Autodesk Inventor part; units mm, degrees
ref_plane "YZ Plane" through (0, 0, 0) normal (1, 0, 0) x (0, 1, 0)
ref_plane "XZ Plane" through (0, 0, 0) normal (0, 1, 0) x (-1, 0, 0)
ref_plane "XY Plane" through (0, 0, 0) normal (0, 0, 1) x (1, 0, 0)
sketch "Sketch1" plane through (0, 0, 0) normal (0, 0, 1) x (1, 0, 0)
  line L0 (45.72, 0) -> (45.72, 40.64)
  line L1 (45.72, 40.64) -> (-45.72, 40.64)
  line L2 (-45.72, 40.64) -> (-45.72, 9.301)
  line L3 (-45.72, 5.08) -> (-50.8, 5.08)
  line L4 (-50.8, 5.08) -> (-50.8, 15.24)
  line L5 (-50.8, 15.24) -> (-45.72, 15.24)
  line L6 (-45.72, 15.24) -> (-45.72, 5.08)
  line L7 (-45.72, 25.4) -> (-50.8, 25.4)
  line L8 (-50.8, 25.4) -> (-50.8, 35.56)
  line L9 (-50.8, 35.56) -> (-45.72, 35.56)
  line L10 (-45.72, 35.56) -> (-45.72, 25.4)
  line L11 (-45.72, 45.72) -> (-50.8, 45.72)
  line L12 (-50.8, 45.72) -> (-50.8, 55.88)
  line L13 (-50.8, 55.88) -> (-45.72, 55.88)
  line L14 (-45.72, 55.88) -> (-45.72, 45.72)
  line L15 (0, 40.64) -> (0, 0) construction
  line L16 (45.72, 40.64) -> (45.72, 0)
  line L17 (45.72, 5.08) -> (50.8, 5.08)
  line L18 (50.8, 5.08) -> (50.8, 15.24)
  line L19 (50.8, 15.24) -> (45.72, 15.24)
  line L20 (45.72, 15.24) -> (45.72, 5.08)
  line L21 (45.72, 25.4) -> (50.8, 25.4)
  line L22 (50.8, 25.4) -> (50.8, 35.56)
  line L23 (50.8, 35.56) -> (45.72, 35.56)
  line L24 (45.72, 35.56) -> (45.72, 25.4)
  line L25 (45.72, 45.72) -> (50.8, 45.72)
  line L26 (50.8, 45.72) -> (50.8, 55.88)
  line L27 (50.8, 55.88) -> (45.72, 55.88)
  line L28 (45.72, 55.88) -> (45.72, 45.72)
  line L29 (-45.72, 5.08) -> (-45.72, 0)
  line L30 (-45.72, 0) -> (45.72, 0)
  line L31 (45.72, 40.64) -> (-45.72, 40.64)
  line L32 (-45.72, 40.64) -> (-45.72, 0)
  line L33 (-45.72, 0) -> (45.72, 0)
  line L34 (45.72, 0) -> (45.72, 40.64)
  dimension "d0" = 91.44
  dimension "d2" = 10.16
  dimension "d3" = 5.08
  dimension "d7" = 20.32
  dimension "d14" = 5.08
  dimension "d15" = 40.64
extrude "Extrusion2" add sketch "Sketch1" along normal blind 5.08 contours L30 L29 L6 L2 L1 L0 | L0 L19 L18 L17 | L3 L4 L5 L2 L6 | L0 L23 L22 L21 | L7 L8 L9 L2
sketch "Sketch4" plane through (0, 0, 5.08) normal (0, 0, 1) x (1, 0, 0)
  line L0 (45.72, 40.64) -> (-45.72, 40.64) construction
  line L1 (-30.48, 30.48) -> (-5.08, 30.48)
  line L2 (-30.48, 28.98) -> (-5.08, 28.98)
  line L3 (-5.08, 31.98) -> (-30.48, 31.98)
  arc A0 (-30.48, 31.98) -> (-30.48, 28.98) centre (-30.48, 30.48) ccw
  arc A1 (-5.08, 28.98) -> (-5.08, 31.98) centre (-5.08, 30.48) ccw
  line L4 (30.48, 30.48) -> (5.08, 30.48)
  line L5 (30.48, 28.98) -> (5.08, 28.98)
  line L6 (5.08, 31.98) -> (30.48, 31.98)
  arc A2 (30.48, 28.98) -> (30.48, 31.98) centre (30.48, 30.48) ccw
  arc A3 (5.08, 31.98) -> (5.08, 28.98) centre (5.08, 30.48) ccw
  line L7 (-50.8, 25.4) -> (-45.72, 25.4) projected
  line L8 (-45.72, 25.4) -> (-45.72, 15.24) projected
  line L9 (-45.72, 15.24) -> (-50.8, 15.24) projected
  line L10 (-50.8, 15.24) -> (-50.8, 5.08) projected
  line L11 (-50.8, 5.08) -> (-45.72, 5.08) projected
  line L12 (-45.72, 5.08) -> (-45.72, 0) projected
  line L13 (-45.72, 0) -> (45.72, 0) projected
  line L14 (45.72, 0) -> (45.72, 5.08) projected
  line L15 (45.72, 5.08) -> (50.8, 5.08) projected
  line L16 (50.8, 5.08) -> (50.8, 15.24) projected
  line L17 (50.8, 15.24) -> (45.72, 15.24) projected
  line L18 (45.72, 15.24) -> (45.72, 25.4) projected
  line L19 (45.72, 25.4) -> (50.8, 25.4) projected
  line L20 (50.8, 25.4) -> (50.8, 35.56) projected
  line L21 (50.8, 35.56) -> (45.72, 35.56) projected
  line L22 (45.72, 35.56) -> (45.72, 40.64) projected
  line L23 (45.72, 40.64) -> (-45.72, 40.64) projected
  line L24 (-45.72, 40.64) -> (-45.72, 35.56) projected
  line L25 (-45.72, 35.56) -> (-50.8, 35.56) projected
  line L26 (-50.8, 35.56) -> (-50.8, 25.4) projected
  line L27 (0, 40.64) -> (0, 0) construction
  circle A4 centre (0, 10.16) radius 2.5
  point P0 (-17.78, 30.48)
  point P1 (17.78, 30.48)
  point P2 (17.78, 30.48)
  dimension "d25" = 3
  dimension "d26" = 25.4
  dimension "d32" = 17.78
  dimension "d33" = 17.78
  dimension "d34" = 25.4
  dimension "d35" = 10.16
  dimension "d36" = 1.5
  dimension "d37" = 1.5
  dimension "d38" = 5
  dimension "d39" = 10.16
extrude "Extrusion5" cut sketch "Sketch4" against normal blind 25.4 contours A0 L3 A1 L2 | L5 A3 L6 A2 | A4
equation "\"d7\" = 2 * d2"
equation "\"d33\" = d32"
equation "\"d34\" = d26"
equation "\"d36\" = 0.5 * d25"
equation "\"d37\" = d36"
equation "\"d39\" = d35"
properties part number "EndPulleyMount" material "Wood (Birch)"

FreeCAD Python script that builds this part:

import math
import FreeCAD as App
import Part
import Sketcher
from FreeCAD import Vector
Q = App.Units.Quantity

doc = App.newDocument("Part")
body = doc.addObject("PartDesign::Body", "Body")

# Sketch on XY plane
sketch1 = doc.addObject("Sketcher::SketchObject", "Sketch")
body.addObject(sketch1)
sketch1.AttachmentSupport = (doc.XY_Plane, [""])
sketch1.MapMode = "FlatFace"
sketch1.addGeometry([
    Part.LineSegment(Vector(-45.72, 0, 0), Vector(45.72, 0, 0)),  # 0
    Part.LineSegment(Vector(45.72, 0, 0), Vector(45.72, 5.08, 0)),  # 1
    Part.LineSegment(Vector(45.72, 5.08, 0), Vector(50.8, 5.08, 0)),  # 2
    Part.LineSegment(Vector(50.8, 5.08, 0), Vector(50.8, 15.24, 0)),  # 3
    Part.LineSegment(Vector(50.8, 15.24, 0), Vector(45.72, 15.24, 0)),  # 4
    Part.LineSegment(Vector(45.72, 15.24, 0), Vector(45.72, 25.4, 0)),  # 5
    Part.LineSegment(Vector(45.72, 25.4, 0), Vector(50.8, 25.4, 0)),  # 6
    Part.LineSegment(Vector(50.8, 25.4, 0), Vector(50.8, 35.56, 0)),  # 7
    Part.LineSegment(Vector(50.8, 35.56, 0), Vector(45.72, 35.56, 0)),  # 8
    Part.LineSegment(Vector(45.72, 35.56, 0), Vector(45.72, 40.64, 0)),  # 9
    Part.LineSegment(Vector(45.72, 40.64, 0), Vector(-45.72, 40.64, 0)),  # 10
    Part.LineSegment(Vector(-45.72, 40.64, 0), Vector(-45.72, 35.56, 0)),  # 11
    Part.LineSegment(Vector(-45.72, 35.56, 0), Vector(-50.8, 35.56, 0)),  # 12
    Part.LineSegment(Vector(-50.8, 35.56, 0), Vector(-50.8, 25.4, 0)),  # 13
    Part.LineSegment(Vector(-50.8, 25.4, 0), Vector(-45.72, 25.4, 0)),  # 14
    Part.LineSegment(Vector(-45.72, 25.4, 0), Vector(-45.72, 15.24, 0)),  # 15
    Part.LineSegment(Vector(-45.72, 15.24, 0), Vector(-50.8, 15.24, 0)),  # 16
    Part.LineSegment(Vector(-50.8, 15.24, 0), Vector(-50.8, 5.08, 0)),  # 17
    Part.LineSegment(Vector(-50.8, 5.08, 0), Vector(-45.72, 5.08, 0)),  # 18
    Part.LineSegment(Vector(-45.72, 5.08, 0), Vector(-45.72, 0, 0)),  # 19
], False)
sketch1.addConstraint([
    Sketcher.Constraint("Coincident", 0, 2, 1, 1),
    Sketcher.Constraint("Coincident", 1, 2, 2, 1),
    Sketcher.Constraint("Coincident", 2, 2, 3, 1),
    Sketcher.Constraint("Coincident", 3, 2, 4, 1),
    Sketcher.Constraint("Coincident", 4, 2, 5, 1),
    Sketcher.Constraint("Coincident", 5, 2, 6, 1),
    Sketcher.Constraint("Coincident", 6, 2, 7, 1),
    Sketcher.Constraint("Coincident", 7, 2, 8, 1),
    Sketcher.Constraint("Coincident", 8, 2, 9, 1),
    Sketcher.Constraint("Coincident", 9, 2, 10, 1),
    Sketcher.Constraint("Coincident", 10, 2, 11, 1),
    Sketcher.Constraint("Coincident", 11, 2, 12, 1),
    Sketcher.Constraint("Coincident", 12, 2, 13, 1),
    Sketcher.Constraint("Coincident", 13, 2, 14, 1),
    Sketcher.Constraint("Coincident", 14, 2, 15, 1),
    Sketcher.Constraint("Coincident", 15, 2, 16, 1),
    Sketcher.Constraint("Coincident", 16, 2, 17, 1),
    Sketcher.Constraint("Coincident", 17, 2, 18, 1),
    Sketcher.Constraint("Coincident", 18, 2, 19, 1),
    Sketcher.Constraint("Coincident", 19, 2, 0, 1),
    Sketcher.Constraint("Horizontal", 0),
    Sketcher.Constraint("Vertical", 1),
    Sketcher.Constraint("Horizontal", 2),
    Sketcher.Constraint("Vertical", 3),
    Sketcher.Constraint("Horizontal", 4),
    Sketcher.Constraint("Vertical", 5),
    Sketcher.Constraint("Horizontal", 6),
    Sketcher.Constraint("Vertical", 7),
    Sketcher.Constraint("Horizontal", 8),
    Sketcher.Constraint("Vertical", 9),
    Sketcher.Constraint("Horizontal", 10),
    Sketcher.Constraint("Vertical", 11),
    Sketcher.Constraint("Horizontal", 12),
    Sketcher.Constraint("Vertical", 13),
    Sketcher.Constraint("Horizontal", 14),
    Sketcher.Constraint("Vertical", 15),
    Sketcher.Constraint("Horizontal", 16),
    Sketcher.Constraint("Vertical", 17),
    Sketcher.Constraint("Horizontal", 18),
    Sketcher.Constraint("Vertical", 19),
    Sketcher.Constraint("Symmetric", 0, 2, 19, 2, -1, 1),
    Sketcher.Constraint("Symmetric", 8, 2, 11, 2, -2),
    Sketcher.Constraint("Symmetric", 6, 2, 13, 2, -2),
    Sketcher.Constraint("Symmetric", 4, 2, 15, 2, -2),
    Sketcher.Constraint("Symmetric", 2, 2, 17, 2, -2),
    Sketcher.Constraint("Vertical", 1, 2, 4, 2),
    Sketcher.Constraint("Vertical", 3, 2, 6, 2),
    Sketcher.Constraint("Vertical", 5, 2, 8, 2),
    Sketcher.Constraint("Equal", 18, 1),
    Sketcher.Constraint("Equal", 3, 5),
    Sketcher.Constraint("Equal", 5, 7),
    Sketcher.Constraint("Equal", 1, 9),
    Sketcher.Constraint("DistanceX", 0, 1, 0, 2, Q("3.6 in")),
    Sketcher.Constraint("DistanceX", 2, 1, 2, 2, Q("0.2 in")),
    Sketcher.Constraint("DistanceY", 3, 1, 3, 2, Q("0.4 in")),
])
pad1 = doc.addObject("PartDesign::Pad", "Pad")
body.addObject(pad1)
pad1.Profile = sketch1
pad1.Length = Q("0.2 in")

# Sketch on XY plane
sketch2 = doc.addObject("Sketcher::SketchObject", "Sketch001")
body.addObject(sketch2)
sketch2.AttachmentSupport = (doc.XY_Plane, [""])
sketch2.MapMode = "FlatFace"
sketch2.AttachmentOffset = App.Placement(Vector(0, 0, 0.2 * 25.4), App.Rotation())
sketch2.addGeometry([
    Part.ArcOfCircle(Part.Circle(Vector(-30.48, 30.48, 0), Vector(0, 0, 1), 1.5), math.radians(90), math.radians(270)),  # 0
    Part.LineSegment(Vector(-30.48, 28.98, 0), Vector(-5.08, 28.98, 0)),  # 1
    Part.ArcOfCircle(Part.Circle(Vector(-5.08, 30.48, 0), Vector(0, 0, 1), 1.5), math.radians(-90), math.radians(90)),  # 2
    Part.LineSegment(Vector(-5.08, 31.98, 0), Vector(-30.48, 31.98, 0)),  # 3
    Part.LineSegment(Vector(5.08, 28.98, 0), Vector(30.48, 28.98, 0)),  # 4
    Part.ArcOfCircle(Part.Circle(Vector(30.48, 30.48, 0), Vector(0, 0, 1), 1.5), math.radians(-90), math.radians(90)),  # 5
    Part.LineSegment(Vector(30.48, 31.98, 0), Vector(5.08, 31.98, 0)),  # 6
    Part.ArcOfCircle(Part.Circle(Vector(5.08, 30.48, 0), Vector(0, 0, 1), 1.5), math.radians(90), math.radians(270)),  # 7
    Part.Circle(Vector(0, 10.16, 0), Vector(0, 0, 1), 2.5),  # 8
], False)
sketch2.addConstraint([
    Sketcher.Constraint("Tangent", 0, 2, 1, 1),
    Sketcher.Constraint("Tangent", 1, 2, 2, 1),
    Sketcher.Constraint("Tangent", 2, 2, 3, 1),
    Sketcher.Constraint("Tangent", 3, 2, 0, 1),
    Sketcher.Constraint("Tangent", 4, 2, 5, 1),
    Sketcher.Constraint("Tangent", 5, 2, 6, 1),
    Sketcher.Constraint("Tangent", 6, 2, 7, 1),
    Sketcher.Constraint("Tangent", 7, 2, 4, 1),
    Sketcher.Constraint("Horizontal", 1),
    Sketcher.Constraint("Horizontal", 3),
    Sketcher.Constraint("Horizontal", 4),
    Sketcher.Constraint("Horizontal", 6),
    Sketcher.Constraint("Equal", 2, 5),
    Sketcher.Constraint("Symmetric", 0, 3, 5, 3, -2),
    Sketcher.Constraint("PointOnObject", 8, 3, -2),
    Sketcher.Constraint("Equal", 3, 4),
    Sketcher.Constraint("DistanceX", 1, 1, 1, 2, Q("1 in")),
    Sketcher.Constraint("DistanceY", -1, 1, 8, 3, Q("0.4 in")),
    Sketcher.Constraint("DistanceX", 2, 3, 7, 3, Q("0.4 in")),
    Sketcher.Constraint("Diameter", 8, Q("5 mm")),
    Sketcher.Constraint("Radius", 0, Q("1.5 mm")),
    Sketcher.Constraint("DistanceY", -1, 1, 0, 3, Q("1.2 in")),
])
pocket1 = doc.addObject("PartDesign::Pocket", "Pocket")
body.addObject(pocket1)
pocket1.Profile = sketch2
pocket1.Length = Q("1 in")

doc.recompute()
